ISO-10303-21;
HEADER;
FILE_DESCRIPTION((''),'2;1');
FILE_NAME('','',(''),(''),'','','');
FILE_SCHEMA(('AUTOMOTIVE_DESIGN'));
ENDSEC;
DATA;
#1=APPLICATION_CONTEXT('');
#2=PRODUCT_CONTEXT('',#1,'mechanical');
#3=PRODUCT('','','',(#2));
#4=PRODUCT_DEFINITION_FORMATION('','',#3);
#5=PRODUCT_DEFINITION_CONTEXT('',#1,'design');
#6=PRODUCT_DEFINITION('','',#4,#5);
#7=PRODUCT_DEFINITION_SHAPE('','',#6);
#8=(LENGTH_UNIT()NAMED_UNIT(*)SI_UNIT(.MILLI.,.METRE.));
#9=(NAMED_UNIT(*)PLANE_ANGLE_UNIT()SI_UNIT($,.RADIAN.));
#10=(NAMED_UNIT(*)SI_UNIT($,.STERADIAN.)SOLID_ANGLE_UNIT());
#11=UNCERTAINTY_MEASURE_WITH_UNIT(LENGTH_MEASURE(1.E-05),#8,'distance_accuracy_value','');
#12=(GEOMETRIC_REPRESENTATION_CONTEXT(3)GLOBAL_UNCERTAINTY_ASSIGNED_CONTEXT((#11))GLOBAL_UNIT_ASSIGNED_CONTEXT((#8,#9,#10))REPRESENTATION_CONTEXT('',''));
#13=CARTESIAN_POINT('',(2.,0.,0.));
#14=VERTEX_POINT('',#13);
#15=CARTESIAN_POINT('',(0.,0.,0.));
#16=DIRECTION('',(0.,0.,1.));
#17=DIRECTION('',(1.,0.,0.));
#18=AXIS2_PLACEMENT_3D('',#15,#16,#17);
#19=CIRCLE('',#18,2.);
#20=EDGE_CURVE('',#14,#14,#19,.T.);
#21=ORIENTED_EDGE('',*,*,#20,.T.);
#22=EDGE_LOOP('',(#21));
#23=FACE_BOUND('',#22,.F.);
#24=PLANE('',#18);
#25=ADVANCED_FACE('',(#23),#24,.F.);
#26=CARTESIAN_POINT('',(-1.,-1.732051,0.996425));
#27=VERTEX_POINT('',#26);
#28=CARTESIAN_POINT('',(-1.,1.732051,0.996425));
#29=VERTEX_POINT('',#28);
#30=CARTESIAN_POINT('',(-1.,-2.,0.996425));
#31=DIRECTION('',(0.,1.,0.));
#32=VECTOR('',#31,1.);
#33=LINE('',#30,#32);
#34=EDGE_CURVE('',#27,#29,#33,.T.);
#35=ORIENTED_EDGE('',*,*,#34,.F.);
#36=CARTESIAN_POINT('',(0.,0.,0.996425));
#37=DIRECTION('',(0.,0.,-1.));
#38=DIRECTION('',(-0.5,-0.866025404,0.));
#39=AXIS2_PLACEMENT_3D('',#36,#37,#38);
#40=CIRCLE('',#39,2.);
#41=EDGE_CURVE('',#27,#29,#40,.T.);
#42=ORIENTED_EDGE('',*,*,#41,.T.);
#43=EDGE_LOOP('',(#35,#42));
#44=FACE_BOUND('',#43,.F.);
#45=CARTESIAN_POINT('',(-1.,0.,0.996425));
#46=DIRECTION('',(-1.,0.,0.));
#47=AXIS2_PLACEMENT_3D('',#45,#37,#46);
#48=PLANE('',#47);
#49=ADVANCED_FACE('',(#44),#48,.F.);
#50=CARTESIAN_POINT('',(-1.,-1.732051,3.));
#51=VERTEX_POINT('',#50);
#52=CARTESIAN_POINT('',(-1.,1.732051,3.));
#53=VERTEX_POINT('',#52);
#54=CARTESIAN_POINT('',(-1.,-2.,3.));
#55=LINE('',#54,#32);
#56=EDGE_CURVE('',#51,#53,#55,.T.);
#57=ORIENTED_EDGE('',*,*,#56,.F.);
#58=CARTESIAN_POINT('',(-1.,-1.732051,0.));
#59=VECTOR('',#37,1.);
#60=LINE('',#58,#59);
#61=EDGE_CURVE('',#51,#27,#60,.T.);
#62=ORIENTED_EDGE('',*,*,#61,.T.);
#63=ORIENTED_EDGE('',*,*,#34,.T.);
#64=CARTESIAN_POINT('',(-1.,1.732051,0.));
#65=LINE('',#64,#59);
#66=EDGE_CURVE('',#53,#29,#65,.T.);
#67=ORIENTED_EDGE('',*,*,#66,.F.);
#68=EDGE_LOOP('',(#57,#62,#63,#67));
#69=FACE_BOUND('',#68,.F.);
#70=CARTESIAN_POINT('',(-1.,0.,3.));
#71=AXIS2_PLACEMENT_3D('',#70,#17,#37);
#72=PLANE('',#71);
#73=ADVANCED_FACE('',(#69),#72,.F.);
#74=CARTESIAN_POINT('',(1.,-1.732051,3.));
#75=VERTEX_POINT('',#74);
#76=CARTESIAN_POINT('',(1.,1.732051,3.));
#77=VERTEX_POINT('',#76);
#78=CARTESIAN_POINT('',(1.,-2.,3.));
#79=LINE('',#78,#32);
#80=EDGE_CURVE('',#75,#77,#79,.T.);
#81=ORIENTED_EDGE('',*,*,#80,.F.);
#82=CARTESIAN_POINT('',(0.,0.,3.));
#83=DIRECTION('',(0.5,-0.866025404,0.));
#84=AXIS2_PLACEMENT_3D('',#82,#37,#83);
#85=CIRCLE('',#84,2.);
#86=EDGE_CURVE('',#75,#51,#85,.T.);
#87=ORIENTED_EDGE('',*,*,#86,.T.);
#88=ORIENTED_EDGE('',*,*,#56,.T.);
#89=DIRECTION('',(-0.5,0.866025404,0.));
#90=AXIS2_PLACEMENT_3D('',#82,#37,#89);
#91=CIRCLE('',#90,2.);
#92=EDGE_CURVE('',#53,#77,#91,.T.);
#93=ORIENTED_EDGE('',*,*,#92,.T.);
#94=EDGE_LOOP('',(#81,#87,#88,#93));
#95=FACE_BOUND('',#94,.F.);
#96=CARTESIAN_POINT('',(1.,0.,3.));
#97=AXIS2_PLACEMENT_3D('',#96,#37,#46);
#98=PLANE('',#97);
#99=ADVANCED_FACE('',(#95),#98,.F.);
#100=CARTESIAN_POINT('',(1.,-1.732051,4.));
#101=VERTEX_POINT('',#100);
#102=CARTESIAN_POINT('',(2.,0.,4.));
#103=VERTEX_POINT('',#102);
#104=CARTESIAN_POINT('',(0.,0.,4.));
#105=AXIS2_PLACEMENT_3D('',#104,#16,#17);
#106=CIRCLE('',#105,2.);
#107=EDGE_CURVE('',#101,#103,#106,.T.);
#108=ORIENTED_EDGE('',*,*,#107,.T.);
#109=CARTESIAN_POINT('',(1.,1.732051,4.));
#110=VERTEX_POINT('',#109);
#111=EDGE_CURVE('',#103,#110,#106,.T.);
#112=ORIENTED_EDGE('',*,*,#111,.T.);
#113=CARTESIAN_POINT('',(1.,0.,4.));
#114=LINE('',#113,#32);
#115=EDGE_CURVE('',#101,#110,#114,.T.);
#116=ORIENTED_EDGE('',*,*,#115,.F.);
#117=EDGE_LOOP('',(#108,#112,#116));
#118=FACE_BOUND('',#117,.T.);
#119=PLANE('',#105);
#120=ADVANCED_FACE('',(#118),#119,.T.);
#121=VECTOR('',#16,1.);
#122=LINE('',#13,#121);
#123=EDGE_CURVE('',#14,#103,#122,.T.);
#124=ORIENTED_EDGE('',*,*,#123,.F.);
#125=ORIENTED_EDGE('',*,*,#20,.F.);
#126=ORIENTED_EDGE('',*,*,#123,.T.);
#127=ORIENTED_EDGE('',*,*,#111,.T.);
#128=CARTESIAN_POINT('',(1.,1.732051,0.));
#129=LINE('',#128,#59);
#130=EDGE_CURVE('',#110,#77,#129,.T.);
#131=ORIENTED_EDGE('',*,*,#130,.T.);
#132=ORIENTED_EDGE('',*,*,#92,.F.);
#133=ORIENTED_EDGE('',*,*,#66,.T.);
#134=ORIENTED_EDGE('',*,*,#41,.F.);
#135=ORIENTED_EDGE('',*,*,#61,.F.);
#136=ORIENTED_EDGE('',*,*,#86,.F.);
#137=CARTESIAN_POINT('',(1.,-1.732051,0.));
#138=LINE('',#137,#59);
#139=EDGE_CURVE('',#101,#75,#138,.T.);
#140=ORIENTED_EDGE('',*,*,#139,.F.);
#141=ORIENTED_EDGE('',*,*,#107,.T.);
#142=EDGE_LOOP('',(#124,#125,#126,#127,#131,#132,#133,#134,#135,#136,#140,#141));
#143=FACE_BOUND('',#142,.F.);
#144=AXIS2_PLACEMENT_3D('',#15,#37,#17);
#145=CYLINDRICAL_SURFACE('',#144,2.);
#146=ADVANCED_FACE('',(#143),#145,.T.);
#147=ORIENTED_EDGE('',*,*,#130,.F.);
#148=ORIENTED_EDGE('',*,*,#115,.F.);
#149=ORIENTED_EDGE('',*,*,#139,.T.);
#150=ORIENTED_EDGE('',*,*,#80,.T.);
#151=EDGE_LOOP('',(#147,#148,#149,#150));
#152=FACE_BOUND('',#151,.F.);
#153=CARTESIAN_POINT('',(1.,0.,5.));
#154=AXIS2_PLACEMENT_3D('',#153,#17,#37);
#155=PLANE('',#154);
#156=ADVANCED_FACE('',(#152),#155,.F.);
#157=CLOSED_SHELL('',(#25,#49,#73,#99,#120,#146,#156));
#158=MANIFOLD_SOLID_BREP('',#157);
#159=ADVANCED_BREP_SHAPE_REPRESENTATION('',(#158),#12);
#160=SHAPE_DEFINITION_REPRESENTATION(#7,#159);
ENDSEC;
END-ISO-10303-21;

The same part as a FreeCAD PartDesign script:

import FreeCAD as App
import Part
import Sketcher

V = App.Vector


def add_polygon(sketch, points):
    """Adds a closed chain of lines whose ends are joined by coincident constraints."""
    first, n = sketch.GeometryCount, len(points)
    for a, b in zip(points, points[1:] + points[:1]):
        sketch.addGeometry(Part.LineSegment(App.Vector(*a, 0), App.Vector(*b, 0)), False)
    for i in range(n):
        sketch.addConstraint(Sketcher.Constraint("Coincident", first + i, 2, first + (i + 1) % n, 1))

doc = App.newDocument("Part")
body = doc.addObject("PartDesign::Body", "Body")

# Sketch on XY plane
sketch1 = doc.addObject("Sketcher::SketchObject", "Sketch")
body.addObject(sketch1)
sketch1.AttachmentSupport = (doc.XY_Plane, [""])
sketch1.MapMode = "FlatFace"
sketch1.addGeometry(Part.Circle(V(0, 0, 0), V(0, 0, 1), 2), False)
sketch1.addConstraint(Sketcher.Constraint("Coincident", 0, 3, -1, 1))
sketch1.addConstraint(Sketcher.Constraint("Diameter", 0, 4.0))
pad1 = doc.addObject("PartDesign::Pad", "Pad")
body.addObject(pad1)
pad1.Profile = sketch1
pad1.Length = 4

# Sketch on XZ plane
sketch2 = doc.addObject("Sketcher::SketchObject", "Sketch001")
body.addObject(sketch2)
sketch2.AttachmentSupport = (doc.XZ_Plane, [""])
sketch2.MapMode = "FlatFace"
add_polygon(sketch2, [(1, 5), (1, 3), (-1, 3), (-1, 1), (-2, 1), (-2, 5)])  # lines 0-5
sketch2.addConstraint(Sketcher.Constraint("Vertical", 0))
sketch2.addConstraint(Sketcher.Constraint("Horizontal", 1))
sketch2.addConstraint(Sketcher.Constraint("Vertical", 2))
sketch2.addConstraint(Sketcher.Constraint("Horizontal", 3))
sketch2.addConstraint(Sketcher.Constraint("Vertical", 4))
sketch2.addConstraint(Sketcher.Constraint("Horizontal", 5))
sketch2.addConstraint(Sketcher.Constraint("Equal", 1, 0))
sketch2.addConstraint(Sketcher.Constraint("DistanceX", 1, 2, 1, 1, 2.0))
sketch2.addConstraint(Sketcher.Constraint("DistanceX", 3, 2, 3, 1, 1.0))
sketch2.addConstraint(Sketcher.Constraint("DistanceX", -1, 1, 0, 2, 1.0))
sketch2.addConstraint(Sketcher.Constraint("DistanceY", -1, 1, 0, 2, 3.0))
sketch2.addConstraint(Sketcher.Constraint("DistanceY", 2, 2, 2, 1, 2.003575))
pocket1 = doc.addObject("PartDesign::Pocket", "Pocket")
body.addObject(pocket1)
pocket1.Profile = sketch2
pocket1.Length = 4
pocket1.Midplane = True

doc.recompute()
